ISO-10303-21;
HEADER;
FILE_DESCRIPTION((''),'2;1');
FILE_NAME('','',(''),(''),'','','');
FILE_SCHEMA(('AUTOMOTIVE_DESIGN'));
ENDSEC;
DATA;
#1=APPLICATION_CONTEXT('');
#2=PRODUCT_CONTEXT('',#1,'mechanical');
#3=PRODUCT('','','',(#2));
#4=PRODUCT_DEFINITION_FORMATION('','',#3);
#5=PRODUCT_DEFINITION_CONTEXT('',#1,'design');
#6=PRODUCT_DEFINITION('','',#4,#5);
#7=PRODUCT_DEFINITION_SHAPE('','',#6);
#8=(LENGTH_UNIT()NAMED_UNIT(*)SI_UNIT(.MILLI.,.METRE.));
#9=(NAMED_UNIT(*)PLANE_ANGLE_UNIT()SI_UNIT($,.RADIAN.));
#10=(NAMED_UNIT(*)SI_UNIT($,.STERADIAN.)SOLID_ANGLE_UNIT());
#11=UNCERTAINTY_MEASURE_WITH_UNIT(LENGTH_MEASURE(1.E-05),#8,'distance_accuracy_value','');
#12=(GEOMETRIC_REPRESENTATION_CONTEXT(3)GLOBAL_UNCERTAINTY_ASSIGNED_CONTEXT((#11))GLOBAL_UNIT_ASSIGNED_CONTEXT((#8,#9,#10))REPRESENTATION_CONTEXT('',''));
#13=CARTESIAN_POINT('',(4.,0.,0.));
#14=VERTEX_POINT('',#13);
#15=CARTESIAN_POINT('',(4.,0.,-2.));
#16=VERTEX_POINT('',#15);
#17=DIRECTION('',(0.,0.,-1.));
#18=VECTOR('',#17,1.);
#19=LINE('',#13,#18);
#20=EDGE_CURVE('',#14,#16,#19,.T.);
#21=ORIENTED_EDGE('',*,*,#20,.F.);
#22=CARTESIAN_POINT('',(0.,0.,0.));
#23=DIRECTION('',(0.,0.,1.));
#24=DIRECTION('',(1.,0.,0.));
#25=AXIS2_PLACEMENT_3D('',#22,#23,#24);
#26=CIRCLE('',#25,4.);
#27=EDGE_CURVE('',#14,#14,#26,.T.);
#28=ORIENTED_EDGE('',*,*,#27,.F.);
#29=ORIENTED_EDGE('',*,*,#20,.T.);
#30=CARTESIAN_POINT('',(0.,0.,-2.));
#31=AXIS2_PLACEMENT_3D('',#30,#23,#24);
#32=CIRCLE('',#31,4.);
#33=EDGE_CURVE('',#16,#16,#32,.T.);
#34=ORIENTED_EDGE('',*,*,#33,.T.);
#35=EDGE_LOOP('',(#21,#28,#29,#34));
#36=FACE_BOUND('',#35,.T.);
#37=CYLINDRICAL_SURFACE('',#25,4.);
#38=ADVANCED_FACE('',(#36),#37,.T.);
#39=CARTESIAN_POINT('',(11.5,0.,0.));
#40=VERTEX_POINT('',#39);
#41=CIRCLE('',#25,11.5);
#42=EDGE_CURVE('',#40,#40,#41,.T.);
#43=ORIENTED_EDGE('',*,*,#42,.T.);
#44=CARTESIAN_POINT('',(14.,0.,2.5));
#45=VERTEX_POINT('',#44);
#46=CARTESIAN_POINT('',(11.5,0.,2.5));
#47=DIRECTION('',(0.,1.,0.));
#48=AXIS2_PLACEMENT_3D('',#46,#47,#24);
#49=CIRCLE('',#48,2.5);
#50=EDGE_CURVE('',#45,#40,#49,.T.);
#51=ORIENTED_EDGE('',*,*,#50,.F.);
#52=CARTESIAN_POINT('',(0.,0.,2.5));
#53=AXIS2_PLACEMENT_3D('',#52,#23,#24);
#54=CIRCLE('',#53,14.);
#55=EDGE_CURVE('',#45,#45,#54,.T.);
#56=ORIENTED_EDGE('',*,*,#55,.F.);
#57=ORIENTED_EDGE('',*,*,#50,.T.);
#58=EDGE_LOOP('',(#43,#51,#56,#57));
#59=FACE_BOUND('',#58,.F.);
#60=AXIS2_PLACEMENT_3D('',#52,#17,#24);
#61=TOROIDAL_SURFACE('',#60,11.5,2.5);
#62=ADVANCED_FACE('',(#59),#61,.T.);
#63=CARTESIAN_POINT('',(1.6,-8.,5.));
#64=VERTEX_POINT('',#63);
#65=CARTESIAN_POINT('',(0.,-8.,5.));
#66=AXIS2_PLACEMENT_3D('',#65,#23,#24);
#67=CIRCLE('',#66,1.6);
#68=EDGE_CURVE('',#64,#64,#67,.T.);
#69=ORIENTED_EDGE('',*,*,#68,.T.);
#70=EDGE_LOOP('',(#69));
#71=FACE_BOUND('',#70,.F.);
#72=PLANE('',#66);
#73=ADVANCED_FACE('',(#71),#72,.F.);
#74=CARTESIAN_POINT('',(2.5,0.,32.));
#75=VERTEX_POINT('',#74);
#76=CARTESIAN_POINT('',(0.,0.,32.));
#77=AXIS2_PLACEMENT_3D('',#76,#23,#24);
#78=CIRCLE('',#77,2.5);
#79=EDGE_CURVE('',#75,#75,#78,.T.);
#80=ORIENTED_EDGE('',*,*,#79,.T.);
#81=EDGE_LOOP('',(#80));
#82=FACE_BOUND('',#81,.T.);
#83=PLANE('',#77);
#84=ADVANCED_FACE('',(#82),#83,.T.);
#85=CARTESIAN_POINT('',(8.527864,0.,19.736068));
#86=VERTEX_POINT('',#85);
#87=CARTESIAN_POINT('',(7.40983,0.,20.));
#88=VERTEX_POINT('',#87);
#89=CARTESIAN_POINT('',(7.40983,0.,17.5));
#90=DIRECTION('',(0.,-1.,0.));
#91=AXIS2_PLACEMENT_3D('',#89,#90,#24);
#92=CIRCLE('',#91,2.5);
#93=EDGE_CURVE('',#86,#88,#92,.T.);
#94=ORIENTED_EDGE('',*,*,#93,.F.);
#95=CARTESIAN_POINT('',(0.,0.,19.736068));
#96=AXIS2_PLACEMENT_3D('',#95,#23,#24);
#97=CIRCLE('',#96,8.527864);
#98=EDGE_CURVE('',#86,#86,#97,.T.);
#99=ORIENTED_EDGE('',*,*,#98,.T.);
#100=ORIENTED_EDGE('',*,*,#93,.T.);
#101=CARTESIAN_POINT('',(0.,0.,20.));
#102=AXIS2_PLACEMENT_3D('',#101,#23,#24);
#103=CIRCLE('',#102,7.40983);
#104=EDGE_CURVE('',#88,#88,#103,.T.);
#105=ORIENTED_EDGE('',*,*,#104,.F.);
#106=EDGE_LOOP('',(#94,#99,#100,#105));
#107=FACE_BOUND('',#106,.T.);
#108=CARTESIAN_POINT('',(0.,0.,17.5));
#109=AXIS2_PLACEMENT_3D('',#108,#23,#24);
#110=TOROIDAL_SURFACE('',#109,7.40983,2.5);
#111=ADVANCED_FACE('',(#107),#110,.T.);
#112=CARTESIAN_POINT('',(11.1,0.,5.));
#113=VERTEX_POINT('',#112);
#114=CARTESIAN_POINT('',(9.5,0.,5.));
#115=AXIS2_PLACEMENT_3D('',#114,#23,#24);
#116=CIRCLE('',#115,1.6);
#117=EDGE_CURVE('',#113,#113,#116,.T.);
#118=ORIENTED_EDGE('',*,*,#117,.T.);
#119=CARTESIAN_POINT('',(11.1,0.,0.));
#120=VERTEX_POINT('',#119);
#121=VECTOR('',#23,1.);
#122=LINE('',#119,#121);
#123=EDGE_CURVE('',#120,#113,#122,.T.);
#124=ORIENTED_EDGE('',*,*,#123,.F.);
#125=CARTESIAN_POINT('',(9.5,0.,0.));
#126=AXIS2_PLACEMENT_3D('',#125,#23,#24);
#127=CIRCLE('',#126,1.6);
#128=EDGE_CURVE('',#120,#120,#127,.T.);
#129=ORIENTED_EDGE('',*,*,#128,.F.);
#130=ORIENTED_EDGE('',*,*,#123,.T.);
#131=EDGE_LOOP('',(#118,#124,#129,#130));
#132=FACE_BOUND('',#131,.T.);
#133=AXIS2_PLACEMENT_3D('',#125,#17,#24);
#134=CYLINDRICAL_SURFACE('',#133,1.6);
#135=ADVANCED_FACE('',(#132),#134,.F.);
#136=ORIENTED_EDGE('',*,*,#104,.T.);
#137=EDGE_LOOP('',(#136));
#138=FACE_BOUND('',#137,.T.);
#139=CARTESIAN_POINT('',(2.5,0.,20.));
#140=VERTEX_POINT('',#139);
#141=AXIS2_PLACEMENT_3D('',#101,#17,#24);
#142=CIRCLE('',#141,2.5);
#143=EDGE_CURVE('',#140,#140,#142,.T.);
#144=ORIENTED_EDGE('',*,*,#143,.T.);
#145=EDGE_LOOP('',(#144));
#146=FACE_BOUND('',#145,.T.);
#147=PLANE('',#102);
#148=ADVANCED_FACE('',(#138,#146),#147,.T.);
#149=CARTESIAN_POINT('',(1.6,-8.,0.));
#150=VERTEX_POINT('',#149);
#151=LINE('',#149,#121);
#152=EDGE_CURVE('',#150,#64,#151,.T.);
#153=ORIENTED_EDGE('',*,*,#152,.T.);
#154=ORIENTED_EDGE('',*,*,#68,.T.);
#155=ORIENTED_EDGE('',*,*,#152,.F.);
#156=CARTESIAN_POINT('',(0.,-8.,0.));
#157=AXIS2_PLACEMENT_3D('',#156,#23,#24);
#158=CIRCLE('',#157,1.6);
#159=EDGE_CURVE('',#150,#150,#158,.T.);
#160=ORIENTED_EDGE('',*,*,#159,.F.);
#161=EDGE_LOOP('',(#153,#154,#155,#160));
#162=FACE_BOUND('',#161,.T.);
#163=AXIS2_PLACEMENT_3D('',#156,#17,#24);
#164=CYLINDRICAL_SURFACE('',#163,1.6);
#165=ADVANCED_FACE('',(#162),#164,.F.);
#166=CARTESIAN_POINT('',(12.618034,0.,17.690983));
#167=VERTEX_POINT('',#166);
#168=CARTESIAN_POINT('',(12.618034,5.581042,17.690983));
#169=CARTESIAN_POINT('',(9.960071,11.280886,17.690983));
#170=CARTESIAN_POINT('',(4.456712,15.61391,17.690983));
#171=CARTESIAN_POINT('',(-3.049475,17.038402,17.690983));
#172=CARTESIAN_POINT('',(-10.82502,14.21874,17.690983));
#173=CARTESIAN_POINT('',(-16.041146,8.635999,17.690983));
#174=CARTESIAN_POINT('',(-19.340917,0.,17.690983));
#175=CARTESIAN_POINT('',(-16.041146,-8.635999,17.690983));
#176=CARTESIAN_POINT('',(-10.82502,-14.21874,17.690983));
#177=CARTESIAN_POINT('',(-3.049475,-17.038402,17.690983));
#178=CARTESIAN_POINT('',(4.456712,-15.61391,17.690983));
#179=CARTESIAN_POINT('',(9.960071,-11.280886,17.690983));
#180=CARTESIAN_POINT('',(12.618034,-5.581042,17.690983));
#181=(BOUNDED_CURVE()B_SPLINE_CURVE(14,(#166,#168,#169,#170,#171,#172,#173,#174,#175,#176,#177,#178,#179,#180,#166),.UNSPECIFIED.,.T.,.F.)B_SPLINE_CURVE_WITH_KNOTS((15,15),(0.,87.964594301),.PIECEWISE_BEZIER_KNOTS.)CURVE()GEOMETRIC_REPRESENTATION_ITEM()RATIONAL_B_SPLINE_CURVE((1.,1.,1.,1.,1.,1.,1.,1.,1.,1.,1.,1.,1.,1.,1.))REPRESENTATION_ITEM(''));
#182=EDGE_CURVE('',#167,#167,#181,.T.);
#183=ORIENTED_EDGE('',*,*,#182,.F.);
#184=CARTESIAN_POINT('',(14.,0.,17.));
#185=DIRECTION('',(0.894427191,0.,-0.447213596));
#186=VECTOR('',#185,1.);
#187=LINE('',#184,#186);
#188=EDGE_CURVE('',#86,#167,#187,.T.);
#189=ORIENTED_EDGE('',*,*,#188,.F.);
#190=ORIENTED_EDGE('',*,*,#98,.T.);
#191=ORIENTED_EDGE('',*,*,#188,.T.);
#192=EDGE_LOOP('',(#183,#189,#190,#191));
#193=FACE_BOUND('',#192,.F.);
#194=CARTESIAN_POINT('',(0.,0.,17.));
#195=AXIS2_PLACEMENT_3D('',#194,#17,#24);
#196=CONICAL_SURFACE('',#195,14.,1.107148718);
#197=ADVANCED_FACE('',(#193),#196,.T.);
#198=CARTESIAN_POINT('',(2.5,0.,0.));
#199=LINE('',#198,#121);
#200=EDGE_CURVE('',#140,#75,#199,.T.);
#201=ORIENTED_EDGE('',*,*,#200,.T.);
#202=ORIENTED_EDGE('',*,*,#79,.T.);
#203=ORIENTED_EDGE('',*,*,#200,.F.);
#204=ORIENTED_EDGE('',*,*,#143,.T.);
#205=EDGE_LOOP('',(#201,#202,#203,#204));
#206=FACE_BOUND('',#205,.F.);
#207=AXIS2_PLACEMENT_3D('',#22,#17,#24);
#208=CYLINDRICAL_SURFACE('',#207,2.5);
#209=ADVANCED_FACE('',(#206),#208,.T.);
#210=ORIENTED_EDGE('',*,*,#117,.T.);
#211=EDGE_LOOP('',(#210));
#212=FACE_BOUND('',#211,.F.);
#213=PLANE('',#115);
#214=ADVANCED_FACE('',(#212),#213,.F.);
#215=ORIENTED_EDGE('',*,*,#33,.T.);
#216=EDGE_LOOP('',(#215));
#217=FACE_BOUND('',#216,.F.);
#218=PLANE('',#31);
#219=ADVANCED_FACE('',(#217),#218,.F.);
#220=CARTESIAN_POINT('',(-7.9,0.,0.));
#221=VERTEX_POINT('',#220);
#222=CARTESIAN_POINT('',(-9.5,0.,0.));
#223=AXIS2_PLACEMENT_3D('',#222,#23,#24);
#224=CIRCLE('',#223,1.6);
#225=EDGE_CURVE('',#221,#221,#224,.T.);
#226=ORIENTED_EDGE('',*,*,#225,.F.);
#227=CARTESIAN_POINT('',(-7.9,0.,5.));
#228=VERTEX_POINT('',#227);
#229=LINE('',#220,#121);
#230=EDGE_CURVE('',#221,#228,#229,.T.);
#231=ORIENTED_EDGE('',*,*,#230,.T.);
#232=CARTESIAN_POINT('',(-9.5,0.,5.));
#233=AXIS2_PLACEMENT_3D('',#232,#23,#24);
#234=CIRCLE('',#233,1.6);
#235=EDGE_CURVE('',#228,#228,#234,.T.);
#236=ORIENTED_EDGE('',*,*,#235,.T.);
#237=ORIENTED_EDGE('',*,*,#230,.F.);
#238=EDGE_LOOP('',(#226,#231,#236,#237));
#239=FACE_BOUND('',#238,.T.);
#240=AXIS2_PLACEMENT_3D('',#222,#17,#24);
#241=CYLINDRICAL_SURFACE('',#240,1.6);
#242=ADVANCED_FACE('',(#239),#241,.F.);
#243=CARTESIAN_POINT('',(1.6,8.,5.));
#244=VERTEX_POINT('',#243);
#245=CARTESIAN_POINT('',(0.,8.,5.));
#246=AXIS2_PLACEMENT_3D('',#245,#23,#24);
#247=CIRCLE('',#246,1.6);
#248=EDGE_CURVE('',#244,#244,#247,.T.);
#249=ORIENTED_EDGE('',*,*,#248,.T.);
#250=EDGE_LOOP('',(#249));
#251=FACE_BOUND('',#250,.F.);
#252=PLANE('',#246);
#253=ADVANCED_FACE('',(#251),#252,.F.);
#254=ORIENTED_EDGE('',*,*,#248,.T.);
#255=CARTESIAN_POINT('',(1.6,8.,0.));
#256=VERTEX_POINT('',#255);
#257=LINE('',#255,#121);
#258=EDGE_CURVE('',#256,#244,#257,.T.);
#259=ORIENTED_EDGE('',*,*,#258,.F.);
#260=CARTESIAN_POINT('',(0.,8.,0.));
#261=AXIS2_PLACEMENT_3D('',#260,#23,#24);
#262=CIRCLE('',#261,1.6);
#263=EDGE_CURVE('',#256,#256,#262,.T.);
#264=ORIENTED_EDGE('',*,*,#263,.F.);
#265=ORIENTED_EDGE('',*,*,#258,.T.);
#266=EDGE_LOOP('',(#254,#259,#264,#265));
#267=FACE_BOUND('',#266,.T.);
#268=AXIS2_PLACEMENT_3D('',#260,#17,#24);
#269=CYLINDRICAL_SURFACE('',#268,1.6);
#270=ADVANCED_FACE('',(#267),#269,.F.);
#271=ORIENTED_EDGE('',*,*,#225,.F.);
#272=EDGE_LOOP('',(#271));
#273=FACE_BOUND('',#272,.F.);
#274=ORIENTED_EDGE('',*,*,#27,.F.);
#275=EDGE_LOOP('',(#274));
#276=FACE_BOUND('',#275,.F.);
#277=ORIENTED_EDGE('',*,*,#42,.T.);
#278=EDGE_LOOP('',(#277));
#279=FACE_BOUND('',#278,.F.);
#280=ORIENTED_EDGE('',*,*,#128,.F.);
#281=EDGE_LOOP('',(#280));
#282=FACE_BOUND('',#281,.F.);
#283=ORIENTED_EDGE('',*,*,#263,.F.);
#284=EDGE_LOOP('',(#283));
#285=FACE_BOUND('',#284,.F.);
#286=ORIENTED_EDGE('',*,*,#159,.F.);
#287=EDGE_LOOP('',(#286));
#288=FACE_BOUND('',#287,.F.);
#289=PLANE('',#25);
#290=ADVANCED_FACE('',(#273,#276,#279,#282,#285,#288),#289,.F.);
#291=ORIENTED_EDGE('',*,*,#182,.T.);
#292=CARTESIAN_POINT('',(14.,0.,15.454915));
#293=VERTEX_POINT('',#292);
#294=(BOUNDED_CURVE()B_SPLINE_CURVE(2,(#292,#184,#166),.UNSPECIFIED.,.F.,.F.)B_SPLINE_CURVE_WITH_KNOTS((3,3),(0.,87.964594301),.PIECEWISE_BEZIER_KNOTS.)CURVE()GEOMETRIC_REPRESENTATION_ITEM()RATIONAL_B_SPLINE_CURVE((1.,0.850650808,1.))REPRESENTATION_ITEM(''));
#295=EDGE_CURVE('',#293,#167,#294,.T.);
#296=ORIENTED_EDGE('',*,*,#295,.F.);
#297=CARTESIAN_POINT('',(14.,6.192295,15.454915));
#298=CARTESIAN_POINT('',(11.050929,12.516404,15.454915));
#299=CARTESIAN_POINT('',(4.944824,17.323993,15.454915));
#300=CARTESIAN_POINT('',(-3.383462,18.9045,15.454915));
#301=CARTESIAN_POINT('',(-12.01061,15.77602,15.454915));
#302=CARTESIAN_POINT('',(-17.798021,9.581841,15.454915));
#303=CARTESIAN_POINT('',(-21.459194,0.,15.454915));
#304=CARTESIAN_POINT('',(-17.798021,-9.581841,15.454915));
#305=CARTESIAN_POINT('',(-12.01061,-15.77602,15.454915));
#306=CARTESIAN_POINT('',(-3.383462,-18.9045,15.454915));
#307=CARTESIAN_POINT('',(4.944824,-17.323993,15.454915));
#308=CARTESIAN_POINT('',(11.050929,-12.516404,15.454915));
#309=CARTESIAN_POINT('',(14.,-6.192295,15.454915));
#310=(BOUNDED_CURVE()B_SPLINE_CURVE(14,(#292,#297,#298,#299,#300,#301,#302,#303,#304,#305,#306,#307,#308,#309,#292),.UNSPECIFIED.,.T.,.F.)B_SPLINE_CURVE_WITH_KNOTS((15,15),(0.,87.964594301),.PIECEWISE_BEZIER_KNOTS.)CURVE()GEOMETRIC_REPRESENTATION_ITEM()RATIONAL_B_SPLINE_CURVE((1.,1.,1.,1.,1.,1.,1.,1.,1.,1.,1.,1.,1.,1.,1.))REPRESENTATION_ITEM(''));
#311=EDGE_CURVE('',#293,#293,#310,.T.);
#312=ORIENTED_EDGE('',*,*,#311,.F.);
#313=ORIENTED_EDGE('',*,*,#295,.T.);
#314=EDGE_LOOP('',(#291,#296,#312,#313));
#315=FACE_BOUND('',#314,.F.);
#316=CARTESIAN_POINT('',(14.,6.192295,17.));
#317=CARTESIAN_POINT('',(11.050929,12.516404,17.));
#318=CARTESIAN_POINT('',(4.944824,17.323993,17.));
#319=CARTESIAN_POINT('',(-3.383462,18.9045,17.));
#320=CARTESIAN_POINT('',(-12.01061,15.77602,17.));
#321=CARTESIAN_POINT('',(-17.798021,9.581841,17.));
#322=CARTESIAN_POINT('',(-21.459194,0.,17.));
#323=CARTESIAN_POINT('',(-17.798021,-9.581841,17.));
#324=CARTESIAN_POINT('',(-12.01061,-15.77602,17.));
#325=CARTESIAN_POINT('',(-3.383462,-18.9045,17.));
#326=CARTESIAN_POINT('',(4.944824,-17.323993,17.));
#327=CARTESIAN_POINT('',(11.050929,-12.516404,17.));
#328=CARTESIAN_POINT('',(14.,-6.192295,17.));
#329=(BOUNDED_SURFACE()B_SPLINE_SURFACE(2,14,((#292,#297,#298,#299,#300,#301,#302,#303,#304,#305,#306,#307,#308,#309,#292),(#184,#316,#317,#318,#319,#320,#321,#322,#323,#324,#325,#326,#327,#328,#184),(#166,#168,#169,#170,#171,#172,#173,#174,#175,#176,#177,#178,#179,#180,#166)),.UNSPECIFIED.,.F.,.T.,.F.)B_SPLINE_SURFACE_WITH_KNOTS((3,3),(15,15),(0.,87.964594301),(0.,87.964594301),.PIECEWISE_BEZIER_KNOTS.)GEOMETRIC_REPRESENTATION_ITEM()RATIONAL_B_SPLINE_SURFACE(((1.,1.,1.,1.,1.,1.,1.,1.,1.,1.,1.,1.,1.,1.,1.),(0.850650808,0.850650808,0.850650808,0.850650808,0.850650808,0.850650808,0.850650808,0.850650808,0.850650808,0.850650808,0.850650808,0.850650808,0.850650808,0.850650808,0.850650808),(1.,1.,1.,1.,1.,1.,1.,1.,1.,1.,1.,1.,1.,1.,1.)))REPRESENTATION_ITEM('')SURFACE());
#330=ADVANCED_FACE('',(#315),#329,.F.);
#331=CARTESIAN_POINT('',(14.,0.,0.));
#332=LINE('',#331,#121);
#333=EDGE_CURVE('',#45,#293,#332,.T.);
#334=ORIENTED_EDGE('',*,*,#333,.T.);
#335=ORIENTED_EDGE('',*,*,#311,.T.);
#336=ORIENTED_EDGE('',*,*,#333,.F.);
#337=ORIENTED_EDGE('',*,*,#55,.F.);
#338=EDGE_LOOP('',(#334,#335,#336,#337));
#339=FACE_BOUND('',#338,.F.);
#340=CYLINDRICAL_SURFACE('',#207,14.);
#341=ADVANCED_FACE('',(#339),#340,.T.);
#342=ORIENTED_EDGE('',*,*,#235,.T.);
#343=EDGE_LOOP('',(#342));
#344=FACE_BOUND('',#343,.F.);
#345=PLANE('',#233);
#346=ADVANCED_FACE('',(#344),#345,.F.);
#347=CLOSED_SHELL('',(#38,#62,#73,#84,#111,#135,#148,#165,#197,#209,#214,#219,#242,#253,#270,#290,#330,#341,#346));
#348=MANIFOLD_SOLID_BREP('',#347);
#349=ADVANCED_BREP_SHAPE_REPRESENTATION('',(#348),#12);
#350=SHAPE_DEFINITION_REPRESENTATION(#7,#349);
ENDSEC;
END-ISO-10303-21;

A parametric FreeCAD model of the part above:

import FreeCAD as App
import Part
import Sketcher

V = App.Vector


def edges_at(feature, points):
    """Names of the edges that pass closest to the given points."""
    edges = feature.Shape.Edges
    near = lambda p: min(range(len(edges)), key=lambda i: edges[i].distToShape(Part.Vertex(*p))[0])
    return sorted({f"Edge{near(p) + 1}" for p in points})

doc = App.newDocument("Part")
body = doc.addObject("PartDesign::Body", "Body")

# Sketch on XY plane
sketch1 = body.newObject("Sketcher::SketchObject", "Sketch")
sketch1.AttachmentSupport = (doc.getObject("XY_Plane"), [""])
sketch1.MapMode = "FlatFace"
sketch1.addGeometry(Part.Circle(V(0, 0, 0), V(0, 0, 1), 14), False)
sketch1.addGeometry(Part.Circle(V(0, -8, 0), V(0, 0, 1), 1.6), False)
sketch1.addGeometry(Part.Circle(V(-9.5, 0, 0), V(0, 0, 1), 1.6), False)
sketch1.addGeometry(Part.Circle(V(9.5, 0, 0), V(0, 0, 1), 1.6), False)
sketch1.addGeometry(Part.Circle(V(0, 8, 0), V(0, 0, 1), 1.6), False)
sketch1.addConstraint(Sketcher.Constraint("Coincident", 0, 3, -1, 1))
sketch1.addConstraint(Sketcher.Constraint("Equal", 1, 2))
sketch1.addConstraint(Sketcher.Constraint("Equal", 2, 3))
sketch1.addConstraint(Sketcher.Constraint("Equal", 3, 4))
sketch1.addConstraint(Sketcher.Constraint("Symmetric", 2, 3, 3, 3, -1, 1))
sketch1.addConstraint(Sketcher.Constraint("Symmetric", 1, 3, 4, 3, -1, 1))
sketch1.addConstraint(Sketcher.Constraint("PointOnObject", 1, 3, -2))
sketch1.addConstraint(Sketcher.Constraint("PointOnObject", 2, 3, -1))
sketch1.addConstraint(Sketcher.Constraint("Diameter", 0, 28.0))
sketch1.addConstraint(Sketcher.Constraint("Diameter", 1, 3.2))
sketch1.addConstraint(Sketcher.Constraint("DistanceY", 1, 3, -1, 1, 8.0))
sketch1.addConstraint(Sketcher.Constraint("DistanceX", 2, 3, 3, 3, 19.0))
pad1 = body.newObject("PartDesign::Pad", "Pad")
pad1.Profile = sketch1
pad1.Length = 20

# Sketch on XY plane
sketch2 = body.newObject("Sketcher::SketchObject", "Sketch001")
sketch2.AttachmentSupport = (doc.getObject("XY_Plane"), [""])
sketch2.MapMode = "FlatFace"
sketch2.addGeometry(Part.Circle(V(0, 0, 0), V(0, 0, 1), 2.5), False)
sketch2.addConstraint(Sketcher.Constraint("Coincident", 0, 3, -1, 1))
sketch2.addConstraint(Sketcher.Constraint("Diameter", 0, 5.0))
pad2 = body.newObject("PartDesign::Pad", "Pad001")
pad2.Profile = sketch2
pad2.Length = 32

# Sketch on XY plane
sketch3 = body.newObject("Sketcher::SketchObject", "Sketch002")
sketch3.AttachmentSupport = (doc.getObject("XY_Plane"), [""])
sketch3.MapMode = "FlatFace"
sketch3.addGeometry(Part.Circle(V(0, 0, 0), V(0, 0, 1), 4), False)
sketch3.addConstraint(Sketcher.Constraint("Coincident", 0, 3, -1, 1))
sketch3.addConstraint(Sketcher.Constraint("Diameter", 0, 8.0))
pad3 = body.newObject("PartDesign::Pad", "Pad002")
pad3.Profile = sketch3
pad3.Length = 2
pad3.Reversed = True

# Sketch on XY plane
sketch4 = body.newObject("Sketcher::SketchObject", "Sketch003")
sketch4.AttachmentSupport = (doc.getObject("XY_Plane"), [""])
sketch4.MapMode = "FlatFace"
sketch4.AttachmentOffset = App.Placement(V(0, 0, 5), App.Rotation())
sketch4.addGeometry(Part.Circle(V(0, 8, 0), V(0, 0, 1), 1.6), False)
sketch4.addGeometry(Part.Circle(V(9.5, 0, 0), V(0, 0, 1), 1.6), False)
sketch4.addGeometry(Part.Circle(V(0, -8, 0), V(0, 0, 1), 1.6), False)
sketch4.addGeometry(Part.Circle(V(-9.5, 0, 0), V(0, 0, 1), 1.6), False)
sketch4.addConstraint(Sketcher.Constraint("Equal", 0, 1))
sketch4.addConstraint(Sketcher.Constraint("Equal", 1, 2))
sketch4.addConstraint(Sketcher.Constraint("Equal", 2, 3))
sketch4.addConstraint(Sketcher.Constraint("Symmetric", 0, 3, 2, 3, -1, 1))
sketch4.addConstraint(Sketcher.Constraint("Symmetric", 1, 3, 3, 3, -1, 1))
sketch4.addConstraint(Sketcher.Constraint("PointOnObject", 0, 3, -2))
sketch4.addConstraint(Sketcher.Constraint("PointOnObject", 1, 3, -1))
sketch4.addConstraint(Sketcher.Constraint("Diameter", 0, 3.2))
sketch4.addConstraint(Sketcher.Constraint("DistanceY", -1, 1, 0, 3, 8.0))
sketch4.addConstraint(Sketcher.Constraint("DistanceX", 3, 3, 1, 3, 19.0))
pad4 = body.newObject("PartDesign::Pad", "Pad003")
pad4.Profile = sketch4
pad4.Length = 15
doc.recompute()

chamfer = body.newObject("PartDesign::Chamfer", "Chamfer")
chamfer.Base = (pad4, edges_at(pad4, [(-14, 0, 20)]))
chamfer.ChamferType = "Two distances"
chamfer.Size = 6
chamfer.Size2 = 3
chamfer.FlipDirection = True
doc.recompute()

fillet = body.newObject("PartDesign::Fillet", "Fillet")
fillet.Base = (chamfer, edges_at(chamfer, [
    (11, 0, 18.5),
    (-8, 0, 20),
    (-14, 0, 17),
    (14, 0, 8.5),
    (-14, 0, 0),
]))
fillet.Radius = 2.5

doc.recompute()
